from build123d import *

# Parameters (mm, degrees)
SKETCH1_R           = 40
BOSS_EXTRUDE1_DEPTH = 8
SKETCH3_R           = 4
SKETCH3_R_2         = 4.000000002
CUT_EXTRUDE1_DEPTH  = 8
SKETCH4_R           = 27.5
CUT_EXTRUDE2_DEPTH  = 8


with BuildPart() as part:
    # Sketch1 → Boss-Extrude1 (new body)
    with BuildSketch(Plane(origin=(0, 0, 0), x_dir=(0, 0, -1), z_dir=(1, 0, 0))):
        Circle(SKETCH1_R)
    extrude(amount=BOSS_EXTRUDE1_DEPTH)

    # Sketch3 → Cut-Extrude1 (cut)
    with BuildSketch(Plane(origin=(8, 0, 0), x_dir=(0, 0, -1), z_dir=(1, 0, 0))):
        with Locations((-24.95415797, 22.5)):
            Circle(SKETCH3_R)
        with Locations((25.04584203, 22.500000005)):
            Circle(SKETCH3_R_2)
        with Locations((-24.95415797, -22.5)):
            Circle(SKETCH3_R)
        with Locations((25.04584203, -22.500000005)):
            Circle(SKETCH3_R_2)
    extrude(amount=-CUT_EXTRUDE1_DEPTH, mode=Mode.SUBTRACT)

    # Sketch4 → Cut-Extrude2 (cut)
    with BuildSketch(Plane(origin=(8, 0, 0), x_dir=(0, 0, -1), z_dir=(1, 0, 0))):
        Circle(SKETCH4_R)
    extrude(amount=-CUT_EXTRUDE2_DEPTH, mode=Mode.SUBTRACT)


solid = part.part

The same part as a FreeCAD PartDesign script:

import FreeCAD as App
import Part
import Sketcher
from FreeCAD import Vector

doc = App.newDocument("Part")
body = doc.addObject("PartDesign::Body", "Body")

sketch1 = body.newObject("Sketcher::SketchObject", "Sketch")
sketch1.AttachmentSupport = (doc.getObject("YZ_Plane"), [""])
sketch1.MapMode = "FlatFace"
sketch1.addGeometry(Part.Circle(Vector(0, 0, 0), Vector(0, 0, 1), 40), False)
sketch1.addConstraint(Sketcher.Constraint("Coincident", 0, 3, -1, 1))
sketch1.addConstraint(Sketcher.Constraint("Diameter", 0, 80.0))
pad1 = body.newObject("PartDesign::Pad", "Pad")
pad1.Profile = sketch1
pad1.Length = 8

sketch2 = body.newObject("Sketcher::SketchObject", "Sketch001")
sketch2.AttachmentSupport = (doc.getObject("YZ_Plane"), [""])
sketch2.MapMode = "FlatFace"
sketch2.AttachmentOffset = App.Placement(Vector(0, 0, 8), App.Rotation())
sketch2.addGeometry(Part.Circle(Vector(22.5, 25, 0), Vector(0, 0, 1), 4), False)
sketch2.addGeometry(Part.Circle(Vector(22.5, -25, 0), Vector(0, 0, 1), 4), False)
sketch2.addGeometry(Part.Circle(Vector(-22.5, 25, 0), Vector(0, 0, 1), 4), False)
sketch2.addGeometry(Part.Circle(Vector(-22.5, -25, 0), Vector(0, 0, 1), 4), False)
sketch2.addConstraint(Sketcher.Constraint("Equal", 0, 1))
sketch2.addConstraint(Sketcher.Constraint("Equal", 1, 2))
sketch2.addConstraint(Sketcher.Constraint("Equal", 2, 3))
sketch2.addConstraint(Sketcher.Constraint("Symmetric", 0, 3, 2, 3, -2))
sketch2.addConstraint(Sketcher.Constraint("Symmetric", 1, 3, 3, 3, -2))
sketch2.addConstraint(Sketcher.Constraint("Vertical", 0, 3, 1, 3))
sketch2.addConstraint(Sketcher.Constraint("Diameter", 0, 8.0))
sketch2.addConstraint(Sketcher.Constraint("DistanceY", 1, 3, 0, 3, 50.0))
sketch2.addConstraint(Sketcher.Constraint("DistanceX", 2, 3, 0, 3, 45.0))
sketch2.addConstraint(Sketcher.Constraint("DistanceY", -1, 1, 0, 3, 24.954158))
pocket1 = body.newObject("PartDesign::Pocket", "Pocket")
pocket1.Profile = sketch2
pocket1.Length = 8

sketch3 = body.newObject("Sketcher::SketchObject", "Sketch002")
sketch3.AttachmentSupport = (doc.getObject("YZ_Plane"), [""])
sketch3.MapMode = "FlatFace"
sketch3.AttachmentOffset = App.Placement(Vector(0, 0, 8), App.Rotation())
sketch3.addGeometry(Part.Circle(Vector(0, 0, 0), Vector(0, 0, 1), 28), False)
sketch3.addConstraint(Sketcher.Constraint("Coincident", 0, 3, -1, 1))
sketch3.addConstraint(Sketcher.Constraint("Diameter", 0, 55.0))
pocket2 = body.newObject("PartDesign::Pocket", "Pocket001")
pocket2.Profile = sketch3
pocket2.Length = 8

doc.recompute()
